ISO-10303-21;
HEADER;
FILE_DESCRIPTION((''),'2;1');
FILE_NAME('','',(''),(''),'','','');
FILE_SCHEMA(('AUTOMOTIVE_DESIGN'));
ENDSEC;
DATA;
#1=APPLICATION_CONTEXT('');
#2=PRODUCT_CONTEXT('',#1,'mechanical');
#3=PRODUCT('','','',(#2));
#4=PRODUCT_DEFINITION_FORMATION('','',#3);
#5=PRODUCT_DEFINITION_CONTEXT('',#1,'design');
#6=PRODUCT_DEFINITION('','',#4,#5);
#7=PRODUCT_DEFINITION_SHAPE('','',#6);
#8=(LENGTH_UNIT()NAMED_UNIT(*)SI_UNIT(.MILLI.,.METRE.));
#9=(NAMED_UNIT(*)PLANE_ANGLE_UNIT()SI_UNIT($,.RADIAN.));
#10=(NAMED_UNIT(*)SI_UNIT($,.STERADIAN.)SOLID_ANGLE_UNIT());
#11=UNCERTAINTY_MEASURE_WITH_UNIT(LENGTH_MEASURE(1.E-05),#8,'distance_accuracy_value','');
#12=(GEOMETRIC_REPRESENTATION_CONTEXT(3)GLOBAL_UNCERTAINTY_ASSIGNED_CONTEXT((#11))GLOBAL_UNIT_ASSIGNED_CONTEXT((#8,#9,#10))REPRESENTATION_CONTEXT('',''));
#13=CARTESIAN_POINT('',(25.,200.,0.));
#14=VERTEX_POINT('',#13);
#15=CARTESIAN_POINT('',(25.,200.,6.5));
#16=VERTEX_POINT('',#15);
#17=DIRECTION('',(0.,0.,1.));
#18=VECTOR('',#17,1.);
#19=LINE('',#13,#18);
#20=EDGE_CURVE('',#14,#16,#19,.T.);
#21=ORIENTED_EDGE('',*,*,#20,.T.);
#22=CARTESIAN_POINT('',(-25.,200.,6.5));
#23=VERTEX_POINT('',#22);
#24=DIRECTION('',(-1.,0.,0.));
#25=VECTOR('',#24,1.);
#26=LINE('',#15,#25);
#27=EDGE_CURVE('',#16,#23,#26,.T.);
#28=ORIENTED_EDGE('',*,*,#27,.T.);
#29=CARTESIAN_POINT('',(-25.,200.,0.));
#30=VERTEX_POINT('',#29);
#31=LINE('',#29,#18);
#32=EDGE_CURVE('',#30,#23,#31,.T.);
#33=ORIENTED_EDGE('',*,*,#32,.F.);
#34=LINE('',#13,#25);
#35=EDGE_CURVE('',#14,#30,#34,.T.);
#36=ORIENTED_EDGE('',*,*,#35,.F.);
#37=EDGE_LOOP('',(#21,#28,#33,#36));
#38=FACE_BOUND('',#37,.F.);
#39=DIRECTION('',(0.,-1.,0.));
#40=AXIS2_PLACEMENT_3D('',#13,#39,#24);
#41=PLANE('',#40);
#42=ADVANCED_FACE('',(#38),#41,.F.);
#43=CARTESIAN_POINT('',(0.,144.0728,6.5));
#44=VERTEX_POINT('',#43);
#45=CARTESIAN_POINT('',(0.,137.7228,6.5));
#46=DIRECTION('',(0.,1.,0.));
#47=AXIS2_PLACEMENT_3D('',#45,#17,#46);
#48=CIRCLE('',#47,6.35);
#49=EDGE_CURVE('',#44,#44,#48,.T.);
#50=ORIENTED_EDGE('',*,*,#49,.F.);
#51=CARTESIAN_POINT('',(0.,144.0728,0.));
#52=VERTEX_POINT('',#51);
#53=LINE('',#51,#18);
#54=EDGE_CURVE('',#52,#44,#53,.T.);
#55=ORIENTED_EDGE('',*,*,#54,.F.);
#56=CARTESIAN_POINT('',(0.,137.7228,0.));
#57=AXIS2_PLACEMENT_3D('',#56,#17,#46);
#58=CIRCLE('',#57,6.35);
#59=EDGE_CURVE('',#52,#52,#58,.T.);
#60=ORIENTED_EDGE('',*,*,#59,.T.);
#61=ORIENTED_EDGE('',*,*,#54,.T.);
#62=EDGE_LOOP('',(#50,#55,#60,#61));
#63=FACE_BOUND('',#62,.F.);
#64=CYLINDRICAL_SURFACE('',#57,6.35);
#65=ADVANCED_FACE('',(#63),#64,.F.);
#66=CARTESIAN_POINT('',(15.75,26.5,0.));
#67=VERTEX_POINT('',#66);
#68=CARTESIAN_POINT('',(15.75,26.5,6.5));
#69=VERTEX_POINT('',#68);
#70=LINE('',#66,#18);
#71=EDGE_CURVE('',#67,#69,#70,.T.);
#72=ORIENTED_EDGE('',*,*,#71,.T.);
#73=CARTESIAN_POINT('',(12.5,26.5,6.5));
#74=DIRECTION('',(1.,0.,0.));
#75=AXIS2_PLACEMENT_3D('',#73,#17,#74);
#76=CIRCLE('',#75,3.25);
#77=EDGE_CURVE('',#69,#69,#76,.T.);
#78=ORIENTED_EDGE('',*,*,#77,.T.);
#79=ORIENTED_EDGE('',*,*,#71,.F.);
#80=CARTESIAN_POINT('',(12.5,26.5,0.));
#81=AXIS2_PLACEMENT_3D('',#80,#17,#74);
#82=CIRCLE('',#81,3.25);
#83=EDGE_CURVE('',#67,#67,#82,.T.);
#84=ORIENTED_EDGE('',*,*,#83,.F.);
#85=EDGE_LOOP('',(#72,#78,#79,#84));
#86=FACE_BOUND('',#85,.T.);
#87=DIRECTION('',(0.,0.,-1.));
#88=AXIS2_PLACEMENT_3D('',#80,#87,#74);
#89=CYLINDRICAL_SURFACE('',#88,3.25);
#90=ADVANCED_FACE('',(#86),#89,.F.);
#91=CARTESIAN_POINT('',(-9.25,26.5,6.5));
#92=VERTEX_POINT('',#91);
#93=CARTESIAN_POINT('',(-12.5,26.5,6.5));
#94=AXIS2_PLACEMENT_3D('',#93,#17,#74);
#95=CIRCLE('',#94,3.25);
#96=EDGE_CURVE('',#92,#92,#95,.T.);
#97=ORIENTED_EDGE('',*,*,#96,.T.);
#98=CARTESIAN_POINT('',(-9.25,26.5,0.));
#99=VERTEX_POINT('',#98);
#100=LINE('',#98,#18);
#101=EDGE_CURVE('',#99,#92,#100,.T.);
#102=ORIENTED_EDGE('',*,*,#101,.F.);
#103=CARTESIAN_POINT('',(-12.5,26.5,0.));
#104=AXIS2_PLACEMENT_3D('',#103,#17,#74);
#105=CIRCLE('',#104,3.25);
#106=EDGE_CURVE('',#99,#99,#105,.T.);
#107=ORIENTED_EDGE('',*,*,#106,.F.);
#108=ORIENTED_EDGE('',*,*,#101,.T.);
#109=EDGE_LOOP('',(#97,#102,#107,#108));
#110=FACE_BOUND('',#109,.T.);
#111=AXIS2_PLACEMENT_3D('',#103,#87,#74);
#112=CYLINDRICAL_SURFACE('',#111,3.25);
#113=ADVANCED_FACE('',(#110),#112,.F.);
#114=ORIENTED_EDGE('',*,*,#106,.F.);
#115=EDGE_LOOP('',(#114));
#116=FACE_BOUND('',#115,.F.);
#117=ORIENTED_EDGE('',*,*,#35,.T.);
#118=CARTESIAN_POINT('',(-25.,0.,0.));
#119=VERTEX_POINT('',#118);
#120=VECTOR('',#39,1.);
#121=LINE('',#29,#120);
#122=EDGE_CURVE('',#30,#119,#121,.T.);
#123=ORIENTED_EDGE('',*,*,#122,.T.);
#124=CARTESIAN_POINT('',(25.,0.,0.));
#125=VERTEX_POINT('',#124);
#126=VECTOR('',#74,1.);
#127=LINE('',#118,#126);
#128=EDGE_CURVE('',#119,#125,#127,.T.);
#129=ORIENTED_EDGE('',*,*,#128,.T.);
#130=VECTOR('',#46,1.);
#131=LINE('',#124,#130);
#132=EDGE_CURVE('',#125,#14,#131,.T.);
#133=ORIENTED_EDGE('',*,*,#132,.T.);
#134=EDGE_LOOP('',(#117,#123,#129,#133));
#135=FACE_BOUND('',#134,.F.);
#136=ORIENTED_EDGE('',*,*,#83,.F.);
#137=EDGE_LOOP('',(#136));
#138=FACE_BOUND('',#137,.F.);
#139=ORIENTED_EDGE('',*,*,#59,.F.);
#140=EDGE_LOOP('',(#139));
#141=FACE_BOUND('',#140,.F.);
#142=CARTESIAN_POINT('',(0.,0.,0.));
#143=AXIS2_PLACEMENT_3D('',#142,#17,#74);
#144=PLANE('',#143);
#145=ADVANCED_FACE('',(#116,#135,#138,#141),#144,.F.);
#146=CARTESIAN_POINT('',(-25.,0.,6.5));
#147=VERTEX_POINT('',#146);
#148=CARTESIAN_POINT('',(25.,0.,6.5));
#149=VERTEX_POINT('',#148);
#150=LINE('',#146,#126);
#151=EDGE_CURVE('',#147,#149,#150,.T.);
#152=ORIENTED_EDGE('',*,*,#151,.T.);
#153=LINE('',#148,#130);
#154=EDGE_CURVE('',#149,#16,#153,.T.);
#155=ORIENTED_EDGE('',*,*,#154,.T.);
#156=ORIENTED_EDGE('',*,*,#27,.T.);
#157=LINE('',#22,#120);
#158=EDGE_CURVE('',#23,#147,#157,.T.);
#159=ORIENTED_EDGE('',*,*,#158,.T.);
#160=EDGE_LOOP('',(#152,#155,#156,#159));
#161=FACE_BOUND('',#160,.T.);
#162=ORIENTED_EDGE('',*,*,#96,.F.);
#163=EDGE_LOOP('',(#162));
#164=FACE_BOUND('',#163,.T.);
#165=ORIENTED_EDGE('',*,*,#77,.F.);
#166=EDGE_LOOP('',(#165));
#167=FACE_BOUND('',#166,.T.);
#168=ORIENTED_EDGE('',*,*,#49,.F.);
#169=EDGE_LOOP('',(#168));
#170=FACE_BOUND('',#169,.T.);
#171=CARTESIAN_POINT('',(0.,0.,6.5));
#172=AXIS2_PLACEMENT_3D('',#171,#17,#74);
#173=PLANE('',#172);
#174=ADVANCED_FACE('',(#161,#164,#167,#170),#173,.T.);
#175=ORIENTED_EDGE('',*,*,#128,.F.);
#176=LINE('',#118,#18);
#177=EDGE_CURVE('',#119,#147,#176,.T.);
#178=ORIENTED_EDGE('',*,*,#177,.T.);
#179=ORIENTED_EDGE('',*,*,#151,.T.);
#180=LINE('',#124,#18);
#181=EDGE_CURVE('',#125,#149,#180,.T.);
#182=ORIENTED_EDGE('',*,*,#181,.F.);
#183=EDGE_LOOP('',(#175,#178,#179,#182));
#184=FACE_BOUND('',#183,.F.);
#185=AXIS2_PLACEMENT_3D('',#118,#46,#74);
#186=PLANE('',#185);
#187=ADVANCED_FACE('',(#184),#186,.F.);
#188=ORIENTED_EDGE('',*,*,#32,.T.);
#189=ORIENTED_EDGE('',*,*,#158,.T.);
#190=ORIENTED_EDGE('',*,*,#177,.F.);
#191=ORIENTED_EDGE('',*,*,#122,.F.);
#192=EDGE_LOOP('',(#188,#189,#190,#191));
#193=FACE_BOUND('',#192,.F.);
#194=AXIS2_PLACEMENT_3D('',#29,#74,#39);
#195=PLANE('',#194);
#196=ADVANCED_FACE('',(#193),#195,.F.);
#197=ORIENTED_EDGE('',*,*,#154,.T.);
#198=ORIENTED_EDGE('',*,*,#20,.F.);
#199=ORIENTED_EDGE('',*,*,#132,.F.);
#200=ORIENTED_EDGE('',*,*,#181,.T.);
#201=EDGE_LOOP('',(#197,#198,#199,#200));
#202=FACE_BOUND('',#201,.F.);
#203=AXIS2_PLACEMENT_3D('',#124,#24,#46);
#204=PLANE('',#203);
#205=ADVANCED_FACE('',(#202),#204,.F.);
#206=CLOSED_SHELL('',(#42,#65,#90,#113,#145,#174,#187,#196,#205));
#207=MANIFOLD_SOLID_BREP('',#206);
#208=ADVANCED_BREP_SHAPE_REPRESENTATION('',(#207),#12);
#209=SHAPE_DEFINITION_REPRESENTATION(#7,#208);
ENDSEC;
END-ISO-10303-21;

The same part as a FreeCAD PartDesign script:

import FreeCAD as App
import Part
import Sketcher

V = App.Vector

doc = App.newDocument("Part")
body = doc.addObject("PartDesign::Body", "Body")

sketch1 = body.newObject("Sketcher::SketchObject", "Sketch")
sketch1.AttachmentSupport = (doc.getObject("XY_Plane"), [""])
sketch1.MapMode = "FlatFace"
sketch1.addGeometry(Part.LineSegment(V(-25, 200, 0), V(-25, 0, 0)), False)
sketch1.addGeometry(Part.LineSegment(V(-25, 0, 0), V(25, 0, 0)), False)
sketch1.addGeometry(Part.LineSegment(V(25, 0, 0), V(25, 200, 0)), False)
sketch1.addGeometry(Part.LineSegment(V(25, 200, 0), V(-25, 200, 0)), False)
sketch1.addGeometry(Part.Circle(V(-12.5, 26.5, 0), V(0, 0, 1), 3.2), False)
sketch1.addGeometry(Part.Circle(V(12.5, 26.5, 0), V(0, 0, 1), 3.2), False)
sketch1.addConstraint(Sketcher.Constraint("Coincident", 0, 2, 1, 1))
sketch1.addConstraint(Sketcher.Constraint("Coincident", 1, 2, 2, 1))
sketch1.addConstraint(Sketcher.Constraint("Coincident", 2, 2, 3, 1))
sketch1.addConstraint(Sketcher.Constraint("Coincident", 3, 2, 0, 1))
sketch1.addConstraint(Sketcher.Constraint("Vertical", 0))
sketch1.addConstraint(Sketcher.Constraint("Horizontal", 1))
sketch1.addConstraint(Sketcher.Constraint("Vertical", 2))
sketch1.addConstraint(Sketcher.Constraint("Horizontal", 3))
sketch1.addConstraint(Sketcher.Constraint("Equal", 4, 5))
sketch1.addConstraint(Sketcher.Constraint("Symmetric", 0, 2, 1, 2, -1, 1))
sketch1.addConstraint(Sketcher.Constraint("Symmetric", 4, 3, 5, 3, -2))
sketch1.addConstraint(Sketcher.Constraint("Diameter", 4, 6.5))
sketch1.addConstraint(Sketcher.Constraint("DistanceX", 1, 1, 1, 2, 50.0))
sketch1.addConstraint(Sketcher.Constraint("DistanceY", 0, 2, 0, 1, 200.0))
sketch1.addConstraint(Sketcher.Constraint("DistanceX", 4, 3, 5, 3, 25.0))
sketch1.addConstraint(Sketcher.Constraint("DistanceY", -1, 1, 4, 3, 26.5))
pad1 = body.newObject("PartDesign::Pad", "Pad")
pad1.Profile = sketch1
pad1.Length = 6.5

sketch2 = body.newObject("Sketcher::SketchObject", "Sketch001")
sketch2.AttachmentSupport = (doc.getObject("XY_Plane"), [""])
sketch2.MapMode = "FlatFace"
sketch2.addGeometry(Part.Circle(V(0, 138, 0), V(0, 0, 1), 6), False)
sketch2.addConstraint(Sketcher.Constraint("PointOnObject", 0, 3, -2))
sketch2.addConstraint(Sketcher.Constraint("Diameter", 0, 12.7))
sketch2.addConstraint(Sketcher.Constraint("DistanceY", -1, 1, 0, 3, 137.7228))
doc.recompute()
hole = body.newObject("PartDesign::Hole", "Hole")
hole.Profile = sketch2
hole.ThreadType = "None"
hole.Diameter = 12.7
hole.DepthType = "ThroughAll"
hole.Reversed = True

doc.recompute()
